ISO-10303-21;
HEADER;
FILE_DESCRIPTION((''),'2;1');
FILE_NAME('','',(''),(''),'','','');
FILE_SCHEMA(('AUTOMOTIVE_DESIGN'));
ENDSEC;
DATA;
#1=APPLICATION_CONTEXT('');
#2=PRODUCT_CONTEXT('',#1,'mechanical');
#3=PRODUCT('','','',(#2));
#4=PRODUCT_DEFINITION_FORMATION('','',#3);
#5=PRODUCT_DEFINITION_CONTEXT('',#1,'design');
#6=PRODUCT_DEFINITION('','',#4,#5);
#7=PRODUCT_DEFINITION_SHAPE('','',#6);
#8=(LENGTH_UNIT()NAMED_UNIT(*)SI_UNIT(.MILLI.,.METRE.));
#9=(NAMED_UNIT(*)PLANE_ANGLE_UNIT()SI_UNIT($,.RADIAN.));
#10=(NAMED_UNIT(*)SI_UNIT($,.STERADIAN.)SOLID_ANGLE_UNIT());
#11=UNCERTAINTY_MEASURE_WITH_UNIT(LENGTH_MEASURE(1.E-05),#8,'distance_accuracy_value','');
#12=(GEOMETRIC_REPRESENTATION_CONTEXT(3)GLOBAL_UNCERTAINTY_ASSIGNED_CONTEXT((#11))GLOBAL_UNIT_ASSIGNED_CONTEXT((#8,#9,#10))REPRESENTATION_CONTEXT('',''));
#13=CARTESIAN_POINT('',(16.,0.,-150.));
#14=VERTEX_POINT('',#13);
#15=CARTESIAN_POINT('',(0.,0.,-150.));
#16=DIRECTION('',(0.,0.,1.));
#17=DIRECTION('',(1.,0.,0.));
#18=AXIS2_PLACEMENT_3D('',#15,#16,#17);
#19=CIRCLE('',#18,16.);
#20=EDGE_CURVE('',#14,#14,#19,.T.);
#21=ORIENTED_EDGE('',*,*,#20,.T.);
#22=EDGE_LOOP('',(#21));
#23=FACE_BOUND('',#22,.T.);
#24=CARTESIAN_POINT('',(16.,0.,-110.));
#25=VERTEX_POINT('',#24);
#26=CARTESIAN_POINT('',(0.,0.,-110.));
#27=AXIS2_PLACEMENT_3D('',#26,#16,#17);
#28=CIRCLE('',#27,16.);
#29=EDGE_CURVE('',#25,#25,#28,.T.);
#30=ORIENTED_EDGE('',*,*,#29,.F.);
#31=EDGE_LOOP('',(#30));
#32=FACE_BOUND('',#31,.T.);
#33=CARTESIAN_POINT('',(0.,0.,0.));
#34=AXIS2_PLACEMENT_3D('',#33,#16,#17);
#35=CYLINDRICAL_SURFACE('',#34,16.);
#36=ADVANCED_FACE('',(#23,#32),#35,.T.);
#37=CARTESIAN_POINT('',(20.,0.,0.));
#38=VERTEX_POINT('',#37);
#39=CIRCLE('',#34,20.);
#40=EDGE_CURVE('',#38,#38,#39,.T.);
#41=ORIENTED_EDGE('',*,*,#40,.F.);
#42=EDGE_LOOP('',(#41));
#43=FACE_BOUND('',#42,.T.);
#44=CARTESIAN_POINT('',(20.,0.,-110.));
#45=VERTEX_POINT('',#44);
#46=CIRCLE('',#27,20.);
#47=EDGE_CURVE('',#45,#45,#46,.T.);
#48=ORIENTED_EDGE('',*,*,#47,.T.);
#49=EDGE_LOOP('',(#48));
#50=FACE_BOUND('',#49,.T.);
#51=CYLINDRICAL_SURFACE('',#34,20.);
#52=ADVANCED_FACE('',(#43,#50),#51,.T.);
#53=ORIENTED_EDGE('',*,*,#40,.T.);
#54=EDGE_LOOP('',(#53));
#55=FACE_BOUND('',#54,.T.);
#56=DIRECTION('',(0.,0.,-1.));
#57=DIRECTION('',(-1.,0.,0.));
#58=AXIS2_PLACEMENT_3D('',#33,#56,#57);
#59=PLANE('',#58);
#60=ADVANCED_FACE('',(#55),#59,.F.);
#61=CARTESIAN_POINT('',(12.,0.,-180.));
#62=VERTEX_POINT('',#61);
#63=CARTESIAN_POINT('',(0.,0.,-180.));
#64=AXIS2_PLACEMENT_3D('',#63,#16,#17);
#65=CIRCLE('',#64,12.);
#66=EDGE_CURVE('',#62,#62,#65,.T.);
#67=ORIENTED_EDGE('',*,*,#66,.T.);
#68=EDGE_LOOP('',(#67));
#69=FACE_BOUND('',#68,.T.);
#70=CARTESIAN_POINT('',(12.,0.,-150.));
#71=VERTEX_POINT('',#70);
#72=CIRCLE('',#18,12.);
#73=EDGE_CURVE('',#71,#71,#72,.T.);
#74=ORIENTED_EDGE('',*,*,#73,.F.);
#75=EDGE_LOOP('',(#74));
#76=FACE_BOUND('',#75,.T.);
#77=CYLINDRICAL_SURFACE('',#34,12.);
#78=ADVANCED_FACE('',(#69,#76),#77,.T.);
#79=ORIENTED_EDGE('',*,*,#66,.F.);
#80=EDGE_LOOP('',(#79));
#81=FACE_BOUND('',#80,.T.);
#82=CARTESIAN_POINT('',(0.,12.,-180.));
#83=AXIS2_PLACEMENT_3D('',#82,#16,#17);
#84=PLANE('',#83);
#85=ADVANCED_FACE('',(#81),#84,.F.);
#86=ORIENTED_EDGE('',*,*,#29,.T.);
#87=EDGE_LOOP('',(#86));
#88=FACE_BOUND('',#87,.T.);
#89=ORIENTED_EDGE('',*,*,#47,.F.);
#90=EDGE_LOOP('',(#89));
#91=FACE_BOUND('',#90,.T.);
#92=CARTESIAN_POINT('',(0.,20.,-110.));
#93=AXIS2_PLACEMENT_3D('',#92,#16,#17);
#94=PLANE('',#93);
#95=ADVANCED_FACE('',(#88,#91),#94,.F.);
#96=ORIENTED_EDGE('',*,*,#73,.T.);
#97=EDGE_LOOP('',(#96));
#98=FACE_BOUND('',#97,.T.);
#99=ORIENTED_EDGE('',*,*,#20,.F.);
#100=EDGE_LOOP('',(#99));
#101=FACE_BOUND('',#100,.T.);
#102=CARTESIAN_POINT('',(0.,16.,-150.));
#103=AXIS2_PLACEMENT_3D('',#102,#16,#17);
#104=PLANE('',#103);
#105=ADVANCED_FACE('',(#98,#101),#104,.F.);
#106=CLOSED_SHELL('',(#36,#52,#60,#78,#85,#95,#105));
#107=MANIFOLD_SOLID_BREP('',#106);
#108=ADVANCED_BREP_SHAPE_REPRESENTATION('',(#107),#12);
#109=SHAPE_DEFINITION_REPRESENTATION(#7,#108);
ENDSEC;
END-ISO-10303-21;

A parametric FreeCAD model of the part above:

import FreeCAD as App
import Part
import Sketcher

doc = App.newDocument("Part")
body = doc.addObject("PartDesign::Body", "Body")

sketch1 = doc.addObject("Sketcher::SketchObject", "Sketch")
body.addObject(sketch1)
sketch1.AttachmentSupport = (doc.YZ_Plane, [""])
sketch1.MapMode = "FlatFace"
sketch1.addGeometry([
    Part.LineSegment(App.Vector(20, 0, 0), App.Vector(0, 0, 0)),
    Part.LineSegment(App.Vector(0, 0, 0), App.Vector(0, -180, 0)),
    Part.LineSegment(App.Vector(0, -180, 0), App.Vector(12, -180, 0)),
    Part.LineSegment(App.Vector(12, -180, 0), App.Vector(12, -150, 0)),
    Part.LineSegment(App.Vector(12, -150, 0), App.Vector(16, -150, 0)),
    Part.LineSegment(App.Vector(16, -150, 0), App.Vector(16, -110, 0)),
    Part.LineSegment(App.Vector(16, -110, 0), App.Vector(20, -110, 0)),
    Part.LineSegment(App.Vector(20, -110, 0), App.Vector(20, 0, 0)),
], False)
sketch1.addConstraint([
    Sketcher.Constraint("Coincident", 0, 2, 1, 1),
    Sketcher.Constraint("Coincident", 1, 2, 2, 1),
    Sketcher.Constraint("Coincident", 2, 2, 3, 1),
    Sketcher.Constraint("Coincident", 3, 2, 4, 1),
    Sketcher.Constraint("Coincident", 4, 2, 5, 1),
    Sketcher.Constraint("Coincident", 5, 2, 6, 1),
    Sketcher.Constraint("Coincident", 6, 2, 7, 1),
    Sketcher.Constraint("Coincident", 7, 2, 0, 1),
    Sketcher.Constraint("Horizontal", 0),
    Sketcher.Constraint("Vertical", 1),
    Sketcher.Constraint("Horizontal", 2),
    Sketcher.Constraint("Vertical", 3),
    Sketcher.Constraint("Horizontal", 4),
    Sketcher.Constraint("Vertical", 5),
    Sketcher.Constraint("Horizontal", 6),
    Sketcher.Constraint("Vertical", 7),
    Sketcher.Constraint("Coincident", 0, 2, -1, 1),
    Sketcher.Constraint("Equal", 4, 6),
    Sketcher.Constraint("DistanceX", 0, 2, 0, 1, 20.0),
    Sketcher.Constraint("DistanceX", 2, 1, 2, 2, 12.0),
    Sketcher.Constraint("DistanceY", 1, 2, 1, 1, 180.0),
    Sketcher.Constraint("DistanceY", 3, 1, 3, 2, 30.0),
    Sketcher.Constraint("DistanceY", 5, 1, 5, 2, 40.0),
])
revolution = doc.addObject("PartDesign::Revolution", "Revolution")
body.addObject(revolution)
revolution.Profile = sketch1
revolution.ReferenceAxis = (sketch1, ["V_Axis"])
revolution.Angle = 360

doc.recompute()
